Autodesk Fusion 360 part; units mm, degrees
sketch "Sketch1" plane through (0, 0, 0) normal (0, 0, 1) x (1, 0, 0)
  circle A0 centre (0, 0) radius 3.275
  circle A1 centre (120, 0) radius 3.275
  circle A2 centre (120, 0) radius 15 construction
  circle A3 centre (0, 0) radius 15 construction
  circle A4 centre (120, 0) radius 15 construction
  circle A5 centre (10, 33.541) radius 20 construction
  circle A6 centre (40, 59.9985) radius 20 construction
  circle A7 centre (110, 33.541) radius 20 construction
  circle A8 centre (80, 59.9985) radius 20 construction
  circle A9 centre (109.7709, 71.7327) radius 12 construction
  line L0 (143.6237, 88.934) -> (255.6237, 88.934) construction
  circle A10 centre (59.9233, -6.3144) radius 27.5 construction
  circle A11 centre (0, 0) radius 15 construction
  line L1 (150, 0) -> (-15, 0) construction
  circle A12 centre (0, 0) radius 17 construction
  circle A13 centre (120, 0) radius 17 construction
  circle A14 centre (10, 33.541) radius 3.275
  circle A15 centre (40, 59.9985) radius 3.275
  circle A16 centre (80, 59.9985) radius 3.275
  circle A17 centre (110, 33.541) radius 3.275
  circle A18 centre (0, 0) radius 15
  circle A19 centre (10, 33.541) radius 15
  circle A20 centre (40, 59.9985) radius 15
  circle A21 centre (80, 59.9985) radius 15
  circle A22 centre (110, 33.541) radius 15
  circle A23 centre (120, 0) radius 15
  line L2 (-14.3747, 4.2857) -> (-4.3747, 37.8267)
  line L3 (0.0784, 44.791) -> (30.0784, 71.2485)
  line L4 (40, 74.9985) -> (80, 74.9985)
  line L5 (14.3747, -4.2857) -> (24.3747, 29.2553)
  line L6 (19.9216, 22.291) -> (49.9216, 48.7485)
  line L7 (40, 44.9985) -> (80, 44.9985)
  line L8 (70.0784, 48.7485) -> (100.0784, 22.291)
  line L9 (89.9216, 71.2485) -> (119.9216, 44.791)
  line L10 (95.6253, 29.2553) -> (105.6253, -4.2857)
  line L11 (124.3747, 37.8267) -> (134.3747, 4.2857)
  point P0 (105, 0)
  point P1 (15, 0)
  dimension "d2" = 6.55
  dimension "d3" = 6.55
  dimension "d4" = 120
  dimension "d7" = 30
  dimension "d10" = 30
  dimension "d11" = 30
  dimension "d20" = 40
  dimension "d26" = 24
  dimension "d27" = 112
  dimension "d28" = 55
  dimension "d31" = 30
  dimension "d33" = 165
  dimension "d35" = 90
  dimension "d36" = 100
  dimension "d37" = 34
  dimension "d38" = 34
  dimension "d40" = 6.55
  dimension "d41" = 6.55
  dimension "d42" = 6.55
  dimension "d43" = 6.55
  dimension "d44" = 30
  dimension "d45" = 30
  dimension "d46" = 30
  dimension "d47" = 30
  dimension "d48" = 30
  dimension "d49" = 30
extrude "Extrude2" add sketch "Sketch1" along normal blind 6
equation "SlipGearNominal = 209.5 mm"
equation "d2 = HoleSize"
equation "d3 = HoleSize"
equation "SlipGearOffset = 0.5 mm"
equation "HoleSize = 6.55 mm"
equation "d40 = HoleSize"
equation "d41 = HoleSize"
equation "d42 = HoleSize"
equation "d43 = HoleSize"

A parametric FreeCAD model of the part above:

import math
import FreeCAD as App
import Part
import Sketcher

doc = App.newDocument("Part")
params = doc.addObject("Spreadsheet::Sheet", "Params")
for row, (alias, value) in enumerate([
    ("sketch1_radius", "15 mm"),
    ("sketch1_diameter", "6.55 mm"),
    ("sketch1_width", "40 mm"),
    ("sketch1_length", "40 mm"),
    ("sketch1_length2", "35 mm"),
    ("pad1_length", "6 mm"),
], start=1):
    params.set(f"A{row}", alias)
    params.set(f"B{row}", "=" + value)
    params.setAlias(f"B{row}", alias)

body = doc.addObject("PartDesign::Body", "Body")

sketch1 = doc.addObject("Sketcher::SketchObject", "Sketch")
body.addObject(sketch1)
sketch1.AttachmentSupport = (doc.XY_Plane, [""])
sketch1.MapMode = "FlatFace"
sketch1.addGeometry([
    Part.ArcOfCircle(Part.Circle(App.Vector(0, 0, 0), App.Vector(0, 0, 1), 15), math.radians(163), math.radians(343)),
    Part.LineSegment(App.Vector(14.4, -4.3, 0), App.Vector(23.1, 25.1, 0)),
    Part.LineSegment(App.Vector(23.1, 25.1, 0), App.Vector(45.7, 45, 0)),
    Part.LineSegment(App.Vector(45.7, 45, 0), App.Vector(74.3, 45, 0)),
    Part.LineSegment(App.Vector(74.3, 45, 0), App.Vector(96.9, 25.1, 0)),
    Part.LineSegment(App.Vector(96.9, 25.1, 0), App.Vector(105.6, -4.3, 0)),
    Part.ArcOfCircle(Part.Circle(App.Vector(120, 0, 0), App.Vector(0, 0, 1), 15), math.radians(-163), math.radians(17)),
    Part.LineSegment(App.Vector(134.4, 4.3, 0), App.Vector(124.4, 37.8, 0)),
    Part.ArcOfCircle(Part.Circle(App.Vector(110, 33.5, 0), App.Vector(0, 0, 1), 15), math.radians(17), math.radians(49)),
    Part.LineSegment(App.Vector(119.9, 44.8, 0), App.Vector(89.9, 71.2, 0)),
    Part.ArcOfCircle(Part.Circle(App.Vector(80, 60, 0), App.Vector(0, 0, 1), 15), math.radians(49), math.radians(90)),
    Part.LineSegment(App.Vector(80, 75, 0), App.Vector(40, 75, 0)),
    Part.ArcOfCircle(Part.Circle(App.Vector(40, 60, 0), App.Vector(0, 0, 1), 15), math.radians(90), math.radians(131)),
    Part.LineSegment(App.Vector(30.1, 71.2, 0), App.Vector(0.1, 44.8, 0)),
    Part.ArcOfCircle(Part.Circle(App.Vector(10, 33.5, 0), App.Vector(0, 0, 1), 15), math.radians(131), math.radians(163)),
    Part.LineSegment(App.Vector(-4.4, 37.8, 0), App.Vector(-14.4, 4.3, 0)),
    Part.Circle(App.Vector(0, 0, 0), App.Vector(0, 0, 1), 3.3),
    Part.Circle(App.Vector(10, 33.5, 0), App.Vector(0, 0, 1), 3.3),
    Part.Circle(App.Vector(40, 60, 0), App.Vector(0, 0, 1), 3.3),
    Part.Circle(App.Vector(80, 60, 0), App.Vector(0, 0, 1), 3.3),
    Part.Circle(App.Vector(110, 33.5, 0), App.Vector(0, 0, 1), 3.3),
    Part.Circle(App.Vector(120, 0, 0), App.Vector(0, 0, 1), 3.3),
], False)
sketch1.addConstraint([
    Sketcher.Constraint("Tangent", 0, 2, 1, 1),
    Sketcher.Constraint("Coincident", 1, 2, 2, 1),
    Sketcher.Constraint("Coincident", 2, 2, 3, 1),
    Sketcher.Constraint("Coincident", 3, 2, 4, 1),
    Sketcher.Constraint("Coincident", 4, 2, 5, 1),
    Sketcher.Constraint("Tangent", 5, 2, 6, 1),
    Sketcher.Constraint("Tangent", 6, 2, 7, 1),
    Sketcher.Constraint("Tangent", 7, 2, 8, 1),
    Sketcher.Constraint("Tangent", 8, 2, 9, 1),
    Sketcher.Constraint("Tangent", 9, 2, 10, 1),
    Sketcher.Constraint("Tangent", 10, 2, 11, 1),
    Sketcher.Constraint("Tangent", 11, 2, 12, 1),
    Sketcher.Constraint("Tangent", 12, 2, 13, 1),
    Sketcher.Constraint("Tangent", 13, 2, 14, 1),
    Sketcher.Constraint("Tangent", 14, 2, 15, 1),
    Sketcher.Constraint("Tangent", 15, 2, 0, 1),
    Sketcher.Constraint("Horizontal", 3),
    Sketcher.Constraint("Horizontal", 11),
    Sketcher.Constraint("Coincident", 0, 3, -1, 1),
    Sketcher.Constraint("Coincident", 16, 3, -1, 1),
    Sketcher.Constraint("Coincident", 17, 3, 14, 3),
    Sketcher.Constraint("Coincident", 18, 3, 12, 3),
    Sketcher.Constraint("Coincident", 19, 3, 10, 3),
    Sketcher.Constraint("Coincident", 20, 3, 8, 3),
    Sketcher.Constraint("Coincident", 21, 3, 6, 3),
    Sketcher.Constraint("Equal", 0, 6),
    Sketcher.Constraint("Equal", 6, 8),
    Sketcher.Constraint("Equal", 8, 10),
    Sketcher.Constraint("Equal", 10, 12),
    Sketcher.Constraint("Equal", 12, 14),
    Sketcher.Constraint("Equal", 16, 17),
    Sketcher.Constraint("Equal", 17, 18),
    Sketcher.Constraint("Equal", 18, 19),
    Sketcher.Constraint("Equal", 19, 20),
    Sketcher.Constraint("Equal", 20, 21),
    Sketcher.Constraint("PointOnObject", 6, 3, -1),
    Sketcher.Constraint("Parallel", 5, 7),
    Sketcher.Constraint("Parallel", 4, 9),
    Sketcher.Constraint("Parallel", 2, 13),
    Sketcher.Constraint("Parallel", 1, 15),
    Sketcher.Constraint("Horizontal", 8, 3, 14, 3),
    Sketcher.Constraint("Horizontal", 1, 2, 4, 2),
    Sketcher.Constraint("Horizontal", 0, 2, 5, 2),
    Sketcher.Constraint("Horizontal", 9, 2, 12, 2),
    Sketcher.Constraint("Radius", 0, 15.0),
    Sketcher.Constraint("Diameter", 16, 6.55),
    Sketcher.Constraint("DistanceX", 11, 2, 11, 1, 40.0),
    Sketcher.Constraint("Distance", 9, 40.0),
    Sketcher.Constraint("DistanceX", -1, 1, 6, 3, 120.0),
    Sketcher.Constraint("DistanceX", 10, 3, 8, 3, 30.0),
    Sketcher.Constraint("DistanceY", 3, 2, 10, 2, 30.0),
    Sketcher.Constraint("Distance", 7, 35.0),
    Sketcher.Constraint("DistanceX", 3, 1, 3, 2, 28.661),
])
sketch1.setExpression("Constraints[44]", "Params.sketch1_radius")
sketch1.setExpression("Constraints[45]", "Params.sketch1_diameter")
sketch1.setExpression("Constraints[46]", "Params.sketch1_width")
sketch1.setExpression("Constraints[47]", "Params.sketch1_length")
sketch1.setExpression("Constraints[51]", "Params.sketch1_length2")
pad1 = doc.addObject("PartDesign::Pad", "Pad")
body.addObject(pad1)
pad1.Profile = sketch1
pad1.setExpression("Length", "Params.pad1_length")

doc.recompute()
